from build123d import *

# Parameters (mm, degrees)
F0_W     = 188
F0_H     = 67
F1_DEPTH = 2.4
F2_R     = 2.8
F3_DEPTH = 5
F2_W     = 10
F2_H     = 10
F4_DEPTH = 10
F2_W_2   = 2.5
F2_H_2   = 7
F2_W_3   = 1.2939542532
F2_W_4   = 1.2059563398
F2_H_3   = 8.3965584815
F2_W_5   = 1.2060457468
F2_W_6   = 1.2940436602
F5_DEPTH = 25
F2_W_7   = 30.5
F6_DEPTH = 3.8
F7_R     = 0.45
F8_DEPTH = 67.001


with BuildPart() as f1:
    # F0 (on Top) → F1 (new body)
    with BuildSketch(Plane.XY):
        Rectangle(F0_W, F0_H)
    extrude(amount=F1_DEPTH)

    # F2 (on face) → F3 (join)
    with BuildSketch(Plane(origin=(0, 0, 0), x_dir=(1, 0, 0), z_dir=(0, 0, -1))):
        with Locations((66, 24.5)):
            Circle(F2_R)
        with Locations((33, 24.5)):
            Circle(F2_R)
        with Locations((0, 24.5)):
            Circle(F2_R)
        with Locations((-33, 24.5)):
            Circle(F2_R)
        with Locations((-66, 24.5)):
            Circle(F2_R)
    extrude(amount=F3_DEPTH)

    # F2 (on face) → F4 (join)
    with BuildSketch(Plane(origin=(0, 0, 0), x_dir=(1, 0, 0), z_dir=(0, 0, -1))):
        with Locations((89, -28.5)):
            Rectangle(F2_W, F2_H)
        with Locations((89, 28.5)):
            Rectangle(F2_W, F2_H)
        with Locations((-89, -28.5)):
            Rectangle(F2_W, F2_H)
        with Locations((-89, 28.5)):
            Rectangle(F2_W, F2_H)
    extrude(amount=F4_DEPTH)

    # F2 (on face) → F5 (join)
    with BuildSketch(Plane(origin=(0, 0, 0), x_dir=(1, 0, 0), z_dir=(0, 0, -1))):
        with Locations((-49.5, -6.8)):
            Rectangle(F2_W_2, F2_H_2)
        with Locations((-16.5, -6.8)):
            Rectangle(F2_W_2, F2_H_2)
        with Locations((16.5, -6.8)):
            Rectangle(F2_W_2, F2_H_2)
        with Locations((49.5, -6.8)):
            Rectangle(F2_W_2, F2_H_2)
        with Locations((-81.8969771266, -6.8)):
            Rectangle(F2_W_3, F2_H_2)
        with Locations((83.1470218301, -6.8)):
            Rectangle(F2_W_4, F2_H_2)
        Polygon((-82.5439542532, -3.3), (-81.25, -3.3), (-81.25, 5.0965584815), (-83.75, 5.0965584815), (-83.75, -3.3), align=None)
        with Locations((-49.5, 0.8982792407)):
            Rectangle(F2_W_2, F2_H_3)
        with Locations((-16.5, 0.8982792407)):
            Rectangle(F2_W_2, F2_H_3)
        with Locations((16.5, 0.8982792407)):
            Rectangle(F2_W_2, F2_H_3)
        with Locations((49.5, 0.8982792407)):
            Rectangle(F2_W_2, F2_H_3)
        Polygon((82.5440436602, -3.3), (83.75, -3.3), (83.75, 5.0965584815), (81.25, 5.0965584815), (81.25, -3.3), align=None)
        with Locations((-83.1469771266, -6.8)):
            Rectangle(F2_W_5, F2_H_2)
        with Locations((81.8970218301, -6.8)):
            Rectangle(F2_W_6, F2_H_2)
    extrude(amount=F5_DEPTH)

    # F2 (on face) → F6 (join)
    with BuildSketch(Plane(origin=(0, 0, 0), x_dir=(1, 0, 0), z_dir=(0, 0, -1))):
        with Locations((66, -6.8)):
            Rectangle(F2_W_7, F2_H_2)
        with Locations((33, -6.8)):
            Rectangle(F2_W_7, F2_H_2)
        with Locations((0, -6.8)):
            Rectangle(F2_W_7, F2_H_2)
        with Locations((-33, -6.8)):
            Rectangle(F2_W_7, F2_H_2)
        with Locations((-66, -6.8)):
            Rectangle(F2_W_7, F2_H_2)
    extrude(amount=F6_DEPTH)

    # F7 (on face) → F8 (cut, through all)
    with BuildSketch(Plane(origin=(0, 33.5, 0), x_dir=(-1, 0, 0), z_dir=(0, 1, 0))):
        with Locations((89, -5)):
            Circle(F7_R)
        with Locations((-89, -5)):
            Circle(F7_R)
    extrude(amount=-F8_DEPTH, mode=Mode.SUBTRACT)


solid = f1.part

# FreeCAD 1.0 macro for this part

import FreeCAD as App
import Part
import Sketcher

V = App.Vector
Q = App.Units.Quantity


def add_polygon(sketch, points):
    """Adds a closed chain of lines whose ends are joined by coincident constraints."""
    first, n = sketch.GeometryCount, len(points)
    for a, b in zip(points, points[1:] + points[:1]):
        sketch.addGeometry(Part.LineSegment(App.Vector(*a, 0), App.Vector(*b, 0)), False)
    for i in range(n):
        sketch.addConstraint(Sketcher.Constraint("Coincident", first + i, 2, first + (i + 1) % n, 1))

doc = App.newDocument("Part")
params = doc.addObject("Spreadsheet::Sheet", "Params")
for row, (alias, value) in enumerate([
    ("sketch1_width", "188 mm"),
    ("sketch1_height", "67 mm"),
    ("pad1_length", "2.4 mm"),
    ("sketch2_diameter", "5.6 mm"),
    ("pad2_length", "5 mm"),
    ("sketch3_width", "10 mm"),
    ("pad3_length", "10 mm"),
    ("sketch4_width", "2.5 mm"),
    ("pad4_length", "25 mm"),
    ("sketch5_height", "7 mm"),
    ("sketch5_width", "30.5 mm"),
    ("pad5_length", "3.8 mm"),
    ("sketch6_diameter", "0.9 mm"),
], start=1):
    params.set(f"A{row}", alias)
    params.set(f"B{row}", "=" + value)
    params.setAlias(f"B{row}", alias)

body = doc.addObject("PartDesign::Body", "Body")

# Sketch on XY plane
sketch1 = doc.addObject("Sketcher::SketchObject", "Sketch")
body.addObject(sketch1)
sketch1.AttachmentSupport = (doc.XY_Plane, [""])
sketch1.MapMode = "FlatFace"
add_polygon(sketch1, [(-94, 34), (-94, -34), (94, -34), (94, 34)])  # lines 0-3
sketch1.addConstraint([
    Sketcher.Constraint("Vertical", 0),
    Sketcher.Constraint("Horizontal", 1),
    Sketcher.Constraint("Vertical", 2),
    Sketcher.Constraint("Horizontal", 3),
    Sketcher.Constraint("Symmetric", 0, 2, 2, 2, -1, 1),
    Sketcher.Constraint("DistanceX", 1, 1, 1, 2, Q("188 mm")),
    Sketcher.Constraint("DistanceY", 0, 2, 0, 1, Q("67 mm")),
])
sketch1.setExpression("Constraints[9]", "Params.sketch1_width")
sketch1.setExpression("Constraints[10]", "Params.sketch1_height")
pad1 = doc.addObject("PartDesign::Pad", "Pad")
body.addObject(pad1)
pad1.Profile = sketch1
pad1.setExpression("Length", "Params.pad1_length")

# Sketch on XY plane
sketch2 = doc.addObject("Sketcher::SketchObject", "Sketch001")
body.addObject(sketch2)
sketch2.AttachmentSupport = (doc.XY_Plane, [""])
sketch2.MapMode = "FlatFace"
sketch2.addGeometry([
    Part.Circle(V(66, -24.5, 0), V(0, 0, 1), 2.8),  # 0
    Part.Circle(V(33, -24.5, 0), V(0, 0, 1), 2.8),  # 1
    Part.Circle(V(0, -24.5, 0), V(0, 0, 1), 2.8),  # 2
    Part.Circle(V(-33, -24.5, 0), V(0, 0, 1), 2.8),  # 3
    Part.Circle(V(-66, -24.5, 0), V(0, 0, 1), 2.8),  # 4
], False)
sketch2.addConstraint([
    Sketcher.Constraint("Equal", 0, 1),
    Sketcher.Constraint("Equal", 1, 2),
    Sketcher.Constraint("Equal", 2, 3),
    Sketcher.Constraint("Equal", 3, 4),
    Sketcher.Constraint("Symmetric", 1, 3, 3, 3, -2),
    Sketcher.Constraint("Symmetric", 0, 3, 4, 3, -2),
    Sketcher.Constraint("PointOnObject", 2, 3, -2),
    Sketcher.Constraint("Horizontal", 0, 3, 1, 3),
    Sketcher.Constraint("Horizontal", 1, 3, 2, 3),
    Sketcher.Constraint("Diameter", 0, Q("5.6 mm")),
    Sketcher.Constraint("DistanceX", -1, 1, 0, 3, Q("66 mm")),
    Sketcher.Constraint("DistanceX", -1, 1, 1, 3, Q("33 mm")),
    Sketcher.Constraint("DistanceY", 0, 3, -1, 1, Q("24.5 mm")),
])
sketch2.setExpression("Constraints[9]", "Params.sketch2_diameter")
pad2 = doc.addObject("PartDesign::Pad", "Pad001")
body.addObject(pad2)
pad2.Profile = sketch2
pad2.setExpression("Length", "Params.pad2_length")
pad2.Reversed = True

# Sketch on XY plane
sketch3 = doc.addObject("Sketcher::SketchObject", "Sketch002")
body.addObject(sketch3)
sketch3.AttachmentSupport = (doc.XY_Plane, [""])
sketch3.MapMode = "FlatFace"
add_polygon(sketch3, [(84, 24), (84, 34), (94, 34), (94, 24)])  # lines 0-3
add_polygon(sketch3, [(84, -34), (84, -24), (94, -24), (94, -34)])  # lines 4-7
add_polygon(sketch3, [(-94, 24), (-94, 34), (-84, 34), (-84, 24)])  # lines 8-11
add_polygon(sketch3, [(-94, -34), (-94, -24), (-84, -24), (-84, -34)])  # lines 12-15
sketch3.addConstraint([
    Sketcher.Constraint("Vertical", 0),
    Sketcher.Constraint("Horizontal", 1),
    Sketcher.Constraint("Vertical", 2),
    Sketcher.Constraint("Horizontal", 3),
    Sketcher.Constraint("Vertical", 4),
    Sketcher.Constraint("Horizontal", 5),
    Sketcher.Constraint("Vertical", 6),
    Sketcher.Constraint("Horizontal", 7),
    Sketcher.Constraint("Vertical", 8),
    Sketcher.Constraint("Horizontal", 9),
    Sketcher.Constraint("Vertical", 10),
    Sketcher.Constraint("Horizontal", 11),
    Sketcher.Constraint("Vertical", 12),
    Sketcher.Constraint("Horizontal", 13),
    Sketcher.Constraint("Vertical", 14),
    Sketcher.Constraint("Horizontal", 15),
    Sketcher.Constraint("Symmetric", 6, 2, 8, 2, -1, 1),
    Sketcher.Constraint("Symmetric", 4, 2, 10, 2, -1, 1),
    Sketcher.Constraint("Symmetric", 2, 2, 12, 2, -1, 1),
    Sketcher.Constraint("Symmetric", 0, 2, 14, 2, -1, 1),
    Sketcher.Constraint("Symmetric", 1, 2, 8, 2, -2),
    Sketcher.Constraint("Symmetric", 3, 2, 10, 2, -2),
    Sketcher.Constraint("Equal", 15, 0),
    Sketcher.Constraint("DistanceX", 1, 1, 1, 2, Q("10 mm")),
    Sketcher.Constraint("DistanceX", -1, 1, 0, 2, Q("84 mm")),
    Sketcher.Constraint("DistanceY", 4, 2, 3, 2, Q("47 mm")),
])
sketch3.setExpression("Constraints[39]", "Params.sketch3_width")
pad3 = doc.addObject("PartDesign::Pad", "Pad002")
body.addObject(pad3)
pad3.Profile = sketch3
pad3.setExpression("Length", "Params.pad3_length")
pad3.Reversed = True

# Sketch on XY plane
sketch4 = doc.addObject("Sketcher::SketchObject", "Sketch003")
body.addObject(sketch4)
sketch4.AttachmentSupport = (doc.XY_Plane, [""])
sketch4.MapMode = "FlatFace"
add_polygon(sketch4, [(-50.8, 10.3), (-48.2, 10.3), (-48.2, -5.1), (-50.8, -5.1)])  # lines 0-3
add_polygon(sketch4, [(-17.8, 10.3), (-15.2, 10.3), (-15.2, -5.1), (-17.8, -5.1)])  # lines 4-7
add_polygon(sketch4, [(15.2, 10.3), (17.8, 10.3), (17.8, -5.1), (15.2, -5.1)])  # lines 8-11
add_polygon(sketch4, [(48.2, 10.3), (50.8, 10.3), (50.8, -5.1), (48.2, -5.1)])  # lines 12-15
add_polygon(sketch4, [(-81.2, 10.3), (-81.2, -5.1), (-83.8, -5.1), (-83.8, 10.3)])  # lines 16-19
add_polygon(sketch4, [(83.8, 10.3), (83.8, -5.1), (81.2, -5.1), (81.2, 10.3)])  # lines 20-23
sketch4.addConstraint([
    Sketcher.Constraint("Horizontal", 0),
    Sketcher.Constraint("Vertical", 1),
    Sketcher.Constraint("Horizontal", 2),
    Sketcher.Constraint("Vertical", 3),
    Sketcher.Constraint("Horizontal", 4),
    Sketcher.Constraint("Vertical", 5),
    Sketcher.Constraint("Horizontal", 6),
    Sketcher.Constraint("Vertical", 7),
    Sketcher.Constraint("Horizontal", 8),
    Sketcher.Constraint("Vertical", 9),
    Sketcher.Constraint("Horizontal", 10),
    Sketcher.Constraint("Vertical", 11),
    Sketcher.Constraint("Horizontal", 12),
    Sketcher.Constraint("Vertical", 13),
    Sketcher.Constraint("Horizontal", 14),
    Sketcher.Constraint("Vertical", 15),
    Sketcher.Constraint("Vertical", 16),
    Sketcher.Constraint("Horizontal", 17),
    Sketcher.Constraint("Vertical", 18),
    Sketcher.Constraint("Horizontal", 19),
    Sketcher.Constraint("Vertical", 20),
    Sketcher.Constraint("Horizontal", 21),
    Sketcher.Constraint("Vertical", 22),
    Sketcher.Constraint("Horizontal", 23),
    Sketcher.Constraint("Symmetric", 7, 2, 8, 2, -2),
    Sketcher.Constraint("Symmetric", 5, 2, 10, 2, -2),
    Sketcher.Constraint("Symmetric", 3, 2, 12, 2, -2),
    Sketcher.Constraint("Symmetric", 1, 2, 14, 2, -2),
    Sketcher.Constraint("Symmetric", 17, 2, 20, 2, -2),
    Sketcher.Constraint("Symmetric", 19, 2, 22, 2, -2),
    Sketcher.Constraint("Horizontal", 3, 2, 4, 2),
    Sketcher.Constraint("Horizontal", 2, 2, 5, 2),
    Sketcher.Constraint("Horizontal", 14, 2, 16, 2),
    Sketcher.Constraint("Horizontal", 15, 2, 18, 2),
    Sketcher.Constraint("Equal", 2, 4),
    Sketcher.Constraint("Equal", 14, 17),
    Sketcher.Constraint("DistanceX", 0, 1, 0, 2, Q("2.5 mm")),
    Sketcher.Constraint("DistanceX", 0, 2, 4, 2, Q("33 mm")),
    Sketcher.Constraint("DistanceX", 4, 2, 8, 2, Q("33 mm")),
    Sketcher.Constraint("DistanceX", 16, 2, 1, 2, Q("33 mm")),
    Sketcher.Constraint("DistanceY", -1, 1, 0, 2, Q("10.3 mm")),
    Sketcher.Constraint("DistanceY", 1, 2, 1, 1, Q("15.396558 mm")),
])
sketch4.setExpression("Constraints[60]", "Params.sketch4_width")
pad4 = doc.addObject("PartDesign::Pad", "Pad003")
body.addObject(pad4)
pad4.Profile = sketch4
pad4.setExpression("Length", "Params.pad4_length")
pad4.Reversed = True

# Sketch on XY plane
sketch5 = doc.addObject("Sketcher::SketchObject", "Sketch004")
body.addObject(sketch5)
sketch5.AttachmentSupport = (doc.XY_Plane, [""])
sketch5.MapMode = "FlatFace"
add_polygon(sketch5, [(51, 3), (51, 10), (81, 10), (81, 3)])  # lines 0-3
add_polygon(sketch5, [(18, 3), (18, 10), (48, 10), (48, 3)])  # lines 4-7
add_polygon(sketch5, [(-15, 3), (-15, 10), (15, 10), (15, 3)])  # lines 8-11
add_polygon(sketch5, [(-48, 3), (-48, 10), (-18, 10), (-18, 3)])  # lines 12-15
add_polygon(sketch5, [(-81, 3), (-81, 10), (-51, 10), (-51, 3)])  # lines 16-19
sketch5.addConstraint([
    Sketcher.Constraint("Vertical", 0),
    Sketcher.Constraint("Horizontal", 1),
    Sketcher.Constraint("Vertical", 2),
    Sketcher.Constraint("Horizontal", 3),
    Sketcher.Constraint("Vertical", 4),
    Sketcher.Constraint("Horizontal", 5),
    Sketcher.Constraint("Vertical", 6),
    Sketcher.Constraint("Horizontal", 7),
    Sketcher.Constraint("Vertical", 8),
    Sketcher.Constraint("Horizontal", 9),
    Sketcher.Constraint("Vertical", 10),
    Sketcher.Constraint("Horizontal", 11),
    Sketcher.Constraint("Vertical", 12),
    Sketcher.Constraint("Horizontal", 13),
    Sketcher.Constraint("Vertical", 14),
    Sketcher.Constraint("Horizontal", 15),
    Sketcher.Constraint("Vertical", 16),
    Sketcher.Constraint("Horizontal", 17),
    Sketcher.Constraint("Vertical", 18),
    Sketcher.Constraint("Horizontal", 19),
    Sketcher.Constraint("Symmetric", 5, 2, 12, 2, -2),
    Sketcher.Constraint("Symmetric", 7, 2, 14, 2, -2),
    Sketcher.Constraint("Symmetric", 1, 2, 16, 2, -2),
    Sketcher.Constraint("Symmetric", 3, 2, 18, 2, -2),
    Sketcher.Constraint("Horizontal", 1, 2, 4, 2),
    Sketcher.Constraint("Horizontal", 3, 2, 6, 2),
    Sketcher.Constraint("Horizontal", 5, 2, 8, 2),
    Sketcher.Constraint("Horizontal", 7, 2, 10, 2),
    Sketcher.Constraint("Equal", 3, 5),
    Sketcher.Constraint("Equal", 7, 9),
    Sketcher.Constraint("DistanceY", 0, 1, 0, 2, Q("7 mm")),
    Sketcher.Constraint("DistanceX", 1, 1, 1, 2, Q("30.5 mm")),
    Sketcher.Constraint("DistanceX", 4, 2, 0, 2, Q("33 mm")),
    Sketcher.Constraint("DistanceX", 8, 2, 4, 2, Q("33 mm")),
    Sketcher.Constraint("DistanceX", 12, 2, 8, 2, Q("33 mm")),
    Sketcher.Constraint("DistanceY", -1, 1, 0, 2, Q("10.3 mm")),
])
sketch5.setExpression("Constraints[50]", "Params.sketch5_height")
sketch5.setExpression("Constraints[51]", "Params.sketch5_width")
pad5 = doc.addObject("PartDesign::Pad", "Pad004")
body.addObject(pad5)
pad5.Profile = sketch5
pad5.setExpression("Length", "Params.pad5_length")
pad5.Reversed = True

# Sketch on XZ plane
sketch6 = doc.addObject("Sketcher::SketchObject", "Sketch005")
body.addObject(sketch6)
sketch6.AttachmentSupport = (doc.XZ_Plane, [""])
sketch6.MapMode = "FlatFace"
sketch6.AttachmentOffset = App.Placement(V(0, 0, -33.5), App.Rotation())
sketch6.addGeometry([
    Part.Circle(V(-89, -5, 0), V(0, 0, 1), 0.45),
    Part.Circle(V(89, -5, 0), V(0, 0, 1), 0.45),
], False)
sketch6.addConstraint([
    Sketcher.Constraint("Equal", 0, 1),
    Sketcher.Constraint("Symmetric", 0, 3, 1, 3, -2),
    Sketcher.Constraint("Diameter", 0, Q("0.9 mm")),
    Sketcher.Constraint("DistanceX", 0, 3, -1, 1, Q("89 mm")),
    Sketcher.Constraint("DistanceY", 0, 3, -1, 1, Q("5 mm")),
])
sketch6.setExpression("Constraints[2]", "Params.sketch6_diameter")
pocket1 = doc.addObject("PartDesign::Pocket", "Pocket")
body.addObject(pocket1)
pocket1.Profile = sketch6
pocket1.Type = "ThroughAll"
pocket1.Reversed = True

doc.recompute()
